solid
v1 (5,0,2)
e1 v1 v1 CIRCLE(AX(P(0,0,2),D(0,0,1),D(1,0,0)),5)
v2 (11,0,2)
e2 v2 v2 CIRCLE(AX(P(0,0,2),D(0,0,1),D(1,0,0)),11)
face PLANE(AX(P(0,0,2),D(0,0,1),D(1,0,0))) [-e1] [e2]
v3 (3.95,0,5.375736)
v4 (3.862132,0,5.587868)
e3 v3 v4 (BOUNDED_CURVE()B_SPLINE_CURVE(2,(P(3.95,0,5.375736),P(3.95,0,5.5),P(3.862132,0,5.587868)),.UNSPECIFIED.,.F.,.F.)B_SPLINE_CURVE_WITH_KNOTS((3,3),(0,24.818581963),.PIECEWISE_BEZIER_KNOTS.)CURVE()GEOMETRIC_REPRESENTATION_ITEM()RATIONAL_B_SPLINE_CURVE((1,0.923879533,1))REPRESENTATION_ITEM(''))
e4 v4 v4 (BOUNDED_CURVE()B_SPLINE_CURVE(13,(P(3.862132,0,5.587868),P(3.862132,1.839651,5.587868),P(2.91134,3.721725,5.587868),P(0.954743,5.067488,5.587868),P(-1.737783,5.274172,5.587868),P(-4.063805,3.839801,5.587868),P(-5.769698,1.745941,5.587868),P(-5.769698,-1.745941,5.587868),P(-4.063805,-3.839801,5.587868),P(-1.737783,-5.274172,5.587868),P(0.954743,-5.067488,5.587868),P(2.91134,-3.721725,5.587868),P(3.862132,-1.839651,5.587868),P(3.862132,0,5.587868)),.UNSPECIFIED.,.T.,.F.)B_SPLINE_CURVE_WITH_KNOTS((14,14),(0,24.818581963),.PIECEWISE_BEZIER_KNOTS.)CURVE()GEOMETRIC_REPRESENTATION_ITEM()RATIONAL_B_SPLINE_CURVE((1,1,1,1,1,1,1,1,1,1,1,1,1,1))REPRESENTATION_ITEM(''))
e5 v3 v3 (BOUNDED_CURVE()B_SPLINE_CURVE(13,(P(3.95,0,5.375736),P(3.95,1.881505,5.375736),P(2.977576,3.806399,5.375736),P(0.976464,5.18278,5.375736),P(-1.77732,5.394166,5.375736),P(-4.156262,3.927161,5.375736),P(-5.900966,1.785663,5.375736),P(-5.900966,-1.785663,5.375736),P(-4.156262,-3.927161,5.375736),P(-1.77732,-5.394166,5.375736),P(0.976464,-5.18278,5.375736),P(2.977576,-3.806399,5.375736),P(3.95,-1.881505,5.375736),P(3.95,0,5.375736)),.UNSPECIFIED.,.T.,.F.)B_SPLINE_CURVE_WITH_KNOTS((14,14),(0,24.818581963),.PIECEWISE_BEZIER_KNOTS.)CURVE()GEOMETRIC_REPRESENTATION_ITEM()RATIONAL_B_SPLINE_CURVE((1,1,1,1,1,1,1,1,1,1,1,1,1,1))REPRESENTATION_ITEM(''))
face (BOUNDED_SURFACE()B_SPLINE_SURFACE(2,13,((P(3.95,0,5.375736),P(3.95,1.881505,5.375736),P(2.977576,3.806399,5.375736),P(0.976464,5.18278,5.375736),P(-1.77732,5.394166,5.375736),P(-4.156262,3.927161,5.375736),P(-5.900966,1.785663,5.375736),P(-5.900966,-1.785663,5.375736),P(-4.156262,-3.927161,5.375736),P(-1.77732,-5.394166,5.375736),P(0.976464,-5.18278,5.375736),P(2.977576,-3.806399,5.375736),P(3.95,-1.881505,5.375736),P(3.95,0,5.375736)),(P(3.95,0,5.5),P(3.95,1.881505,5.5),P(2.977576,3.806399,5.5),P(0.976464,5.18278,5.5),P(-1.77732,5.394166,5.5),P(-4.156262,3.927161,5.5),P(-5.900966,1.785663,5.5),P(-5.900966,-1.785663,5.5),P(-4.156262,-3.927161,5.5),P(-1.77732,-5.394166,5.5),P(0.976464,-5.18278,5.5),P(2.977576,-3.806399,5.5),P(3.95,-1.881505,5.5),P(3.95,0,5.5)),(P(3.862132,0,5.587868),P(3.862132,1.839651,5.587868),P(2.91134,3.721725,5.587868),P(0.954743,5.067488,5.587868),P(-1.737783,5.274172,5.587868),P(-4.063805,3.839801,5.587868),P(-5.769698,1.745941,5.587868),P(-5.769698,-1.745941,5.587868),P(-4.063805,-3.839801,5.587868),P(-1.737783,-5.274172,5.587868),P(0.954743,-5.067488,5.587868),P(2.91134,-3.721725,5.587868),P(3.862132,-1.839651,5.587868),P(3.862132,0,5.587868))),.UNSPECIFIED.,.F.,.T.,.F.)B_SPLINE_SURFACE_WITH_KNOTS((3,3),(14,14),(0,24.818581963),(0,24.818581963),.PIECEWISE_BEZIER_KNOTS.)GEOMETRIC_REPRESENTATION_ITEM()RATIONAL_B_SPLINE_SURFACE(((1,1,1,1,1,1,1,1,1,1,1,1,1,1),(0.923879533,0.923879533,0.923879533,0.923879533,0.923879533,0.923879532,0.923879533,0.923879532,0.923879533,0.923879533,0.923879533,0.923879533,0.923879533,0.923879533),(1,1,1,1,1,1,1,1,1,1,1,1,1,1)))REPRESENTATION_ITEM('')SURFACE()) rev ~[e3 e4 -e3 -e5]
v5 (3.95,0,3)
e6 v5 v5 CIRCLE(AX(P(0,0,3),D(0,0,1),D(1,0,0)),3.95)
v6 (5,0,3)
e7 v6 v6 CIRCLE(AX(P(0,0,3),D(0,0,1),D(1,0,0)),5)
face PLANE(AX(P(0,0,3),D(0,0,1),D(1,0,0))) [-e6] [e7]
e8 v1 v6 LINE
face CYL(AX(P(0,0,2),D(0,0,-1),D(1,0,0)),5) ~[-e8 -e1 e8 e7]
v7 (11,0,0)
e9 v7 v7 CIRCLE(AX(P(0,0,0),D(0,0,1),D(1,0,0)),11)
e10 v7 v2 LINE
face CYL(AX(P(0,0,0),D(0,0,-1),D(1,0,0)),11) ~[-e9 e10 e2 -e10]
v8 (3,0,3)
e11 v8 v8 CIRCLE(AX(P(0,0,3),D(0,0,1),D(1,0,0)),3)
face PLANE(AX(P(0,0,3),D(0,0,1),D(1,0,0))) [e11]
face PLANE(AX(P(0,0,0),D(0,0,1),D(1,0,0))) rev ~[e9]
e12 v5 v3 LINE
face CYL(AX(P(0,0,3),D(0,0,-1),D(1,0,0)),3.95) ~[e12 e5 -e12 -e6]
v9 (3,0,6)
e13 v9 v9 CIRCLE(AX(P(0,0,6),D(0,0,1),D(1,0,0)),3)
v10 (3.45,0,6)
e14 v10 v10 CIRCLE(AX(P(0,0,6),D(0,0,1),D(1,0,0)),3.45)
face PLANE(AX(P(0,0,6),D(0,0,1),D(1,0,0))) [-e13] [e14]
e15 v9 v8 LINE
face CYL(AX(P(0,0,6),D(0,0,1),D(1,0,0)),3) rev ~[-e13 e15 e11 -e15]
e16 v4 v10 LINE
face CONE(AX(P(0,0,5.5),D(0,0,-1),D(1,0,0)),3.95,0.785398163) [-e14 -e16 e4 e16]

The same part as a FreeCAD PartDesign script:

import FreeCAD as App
import Part
import Sketcher

V = App.Vector
Q = App.Units.Quantity


def edges_at(feature, points):
    """Names of the edges that pass closest to the given points."""
    edges = feature.Shape.Edges
    near = lambda p: min(range(len(edges)), key=lambda i: edges[i].distToShape(Part.Vertex(*p))[0])
    return sorted({f"Edge{near(p) + 1}" for p in points})

doc = App.newDocument("Part")
params = doc.addObject("Spreadsheet::Sheet", "Params")
for row, (alias, value) in enumerate([
    ("sketch1_diameter", "22 mm"),
    ("pad1_length", "2 mm"),
    ("sketch2_diameter", "10 mm"),
    ("pad2_length", "1 mm"),
    ("sketch3_diameter", "7.9 mm"),
    ("pad3_length", "3 mm"),
    ("sketch4_diameter", "6 mm"),
    ("pocket1_length", "3 mm"),
    ("chamfer_size", "0.5 mm"),
    ("fillet_radius", "0.3 mm"),
], start=1):
    params.set(f"A{row}", alias)
    params.set(f"B{row}", "=" + value)
    params.setAlias(f"B{row}", alias)

body = doc.addObject("PartDesign::Body", "Body")

sketch1 = doc.addObject("Sketcher::SketchObject", "Sketch")
body.addObject(sketch1)
sketch1.AttachmentSupport = (doc.XY_Plane, [""])
sketch1.MapMode = "FlatFace"
sketch1.addGeometry(Part.Circle(V(0, 0, 0), V(0, 0, 1), 11), False)
sketch1.addConstraint([
    Sketcher.Constraint("Coincident", 0, 3, -1, 1),
    Sketcher.Constraint("Diameter", 0, Q("22 mm")),
])
sketch1.setExpression("Constraints[1]", "Params.sketch1_diameter")
pad1 = doc.addObject("PartDesign::Pad", "Pad")
body.addObject(pad1)
pad1.Profile = sketch1
pad1.setExpression("Length", "Params.pad1_length")

sketch2 = doc.addObject("Sketcher::SketchObject", "Sketch001")
body.addObject(sketch2)
sketch2.AttachmentSupport = (doc.XY_Plane, [""])
sketch2.MapMode = "FlatFace"
sketch2.AttachmentOffset = App.Placement(V(0, 0, 2), App.Rotation())
sketch2.addGeometry(Part.Circle(V(0, 0, 0), V(0, 0, 1), 5), False)
sketch2.addConstraint([
    Sketcher.Constraint("Coincident", 0, 3, -1, 1),
    Sketcher.Constraint("Diameter", 0, Q("10 mm")),
])
sketch2.setExpression("Constraints[1]", "Params.sketch2_diameter")
pad2 = doc.addObject("PartDesign::Pad", "Pad001")
body.addObject(pad2)
pad2.Profile = sketch2
pad2.setExpression("Length", "Params.pad2_length")

sketch3 = doc.addObject("Sketcher::SketchObject", "Sketch002")
body.addObject(sketch3)
sketch3.AttachmentSupport = (doc.XY_Plane, [""])
sketch3.MapMode = "FlatFace"
sketch3.AttachmentOffset = App.Placement(V(0, 0, 3), App.Rotation())
sketch3.addGeometry(Part.Circle(V(0, 0, 0), V(0, 0, 1), 4), False)
sketch3.addConstraint([
    Sketcher.Constraint("Coincident", 0, 3, -1, 1),
    Sketcher.Constraint("Diameter", 0, Q("7.9 mm")),
])
sketch3.setExpression("Constraints[1]", "Params.sketch3_diameter")
pad3 = doc.addObject("PartDesign::Pad", "Pad002")
body.addObject(pad3)
pad3.Profile = sketch3
pad3.setExpression("Length", "Params.pad3_length")

sketch4 = doc.addObject("Sketcher::SketchObject", "Sketch003")
body.addObject(sketch4)
sketch4.AttachmentSupport = (doc.XY_Plane, [""])
sketch4.MapMode = "FlatFace"
sketch4.AttachmentOffset = App.Placement(V(0, 0, 6), App.Rotation())
sketch4.addGeometry(Part.Circle(V(0, 0, 0), V(0, 0, 1), 3), False)
sketch4.addConstraint([
    Sketcher.Constraint("Coincident", 0, 3, -1, 1),
    Sketcher.Constraint("Diameter", 0, Q("6 mm")),
])
sketch4.setExpression("Constraints[1]", "Params.sketch4_diameter")
pocket1 = doc.addObject("PartDesign::Pocket", "Pocket")
body.addObject(pocket1)
pocket1.Profile = sketch4
pocket1.setExpression("Length", "Params.pocket1_length")
doc.recompute()

chamfer = doc.addObject("PartDesign::Chamfer", "Chamfer")
body.addObject(chamfer)
chamfer.Base = (pocket1, edges_at(pocket1, [(-3.95, 0, 6)]))
chamfer.setExpression("Size", "Params.chamfer_size")
doc.recompute()

fillet = doc.addObject("PartDesign::Fillet", "Fillet")
body.addObject(fillet)
fillet.Base = (chamfer, edges_at(chamfer, [(-3.95, 0, 5.5)]))
fillet.setExpression("Radius", "Params.fillet_radius")

doc.recompute()
